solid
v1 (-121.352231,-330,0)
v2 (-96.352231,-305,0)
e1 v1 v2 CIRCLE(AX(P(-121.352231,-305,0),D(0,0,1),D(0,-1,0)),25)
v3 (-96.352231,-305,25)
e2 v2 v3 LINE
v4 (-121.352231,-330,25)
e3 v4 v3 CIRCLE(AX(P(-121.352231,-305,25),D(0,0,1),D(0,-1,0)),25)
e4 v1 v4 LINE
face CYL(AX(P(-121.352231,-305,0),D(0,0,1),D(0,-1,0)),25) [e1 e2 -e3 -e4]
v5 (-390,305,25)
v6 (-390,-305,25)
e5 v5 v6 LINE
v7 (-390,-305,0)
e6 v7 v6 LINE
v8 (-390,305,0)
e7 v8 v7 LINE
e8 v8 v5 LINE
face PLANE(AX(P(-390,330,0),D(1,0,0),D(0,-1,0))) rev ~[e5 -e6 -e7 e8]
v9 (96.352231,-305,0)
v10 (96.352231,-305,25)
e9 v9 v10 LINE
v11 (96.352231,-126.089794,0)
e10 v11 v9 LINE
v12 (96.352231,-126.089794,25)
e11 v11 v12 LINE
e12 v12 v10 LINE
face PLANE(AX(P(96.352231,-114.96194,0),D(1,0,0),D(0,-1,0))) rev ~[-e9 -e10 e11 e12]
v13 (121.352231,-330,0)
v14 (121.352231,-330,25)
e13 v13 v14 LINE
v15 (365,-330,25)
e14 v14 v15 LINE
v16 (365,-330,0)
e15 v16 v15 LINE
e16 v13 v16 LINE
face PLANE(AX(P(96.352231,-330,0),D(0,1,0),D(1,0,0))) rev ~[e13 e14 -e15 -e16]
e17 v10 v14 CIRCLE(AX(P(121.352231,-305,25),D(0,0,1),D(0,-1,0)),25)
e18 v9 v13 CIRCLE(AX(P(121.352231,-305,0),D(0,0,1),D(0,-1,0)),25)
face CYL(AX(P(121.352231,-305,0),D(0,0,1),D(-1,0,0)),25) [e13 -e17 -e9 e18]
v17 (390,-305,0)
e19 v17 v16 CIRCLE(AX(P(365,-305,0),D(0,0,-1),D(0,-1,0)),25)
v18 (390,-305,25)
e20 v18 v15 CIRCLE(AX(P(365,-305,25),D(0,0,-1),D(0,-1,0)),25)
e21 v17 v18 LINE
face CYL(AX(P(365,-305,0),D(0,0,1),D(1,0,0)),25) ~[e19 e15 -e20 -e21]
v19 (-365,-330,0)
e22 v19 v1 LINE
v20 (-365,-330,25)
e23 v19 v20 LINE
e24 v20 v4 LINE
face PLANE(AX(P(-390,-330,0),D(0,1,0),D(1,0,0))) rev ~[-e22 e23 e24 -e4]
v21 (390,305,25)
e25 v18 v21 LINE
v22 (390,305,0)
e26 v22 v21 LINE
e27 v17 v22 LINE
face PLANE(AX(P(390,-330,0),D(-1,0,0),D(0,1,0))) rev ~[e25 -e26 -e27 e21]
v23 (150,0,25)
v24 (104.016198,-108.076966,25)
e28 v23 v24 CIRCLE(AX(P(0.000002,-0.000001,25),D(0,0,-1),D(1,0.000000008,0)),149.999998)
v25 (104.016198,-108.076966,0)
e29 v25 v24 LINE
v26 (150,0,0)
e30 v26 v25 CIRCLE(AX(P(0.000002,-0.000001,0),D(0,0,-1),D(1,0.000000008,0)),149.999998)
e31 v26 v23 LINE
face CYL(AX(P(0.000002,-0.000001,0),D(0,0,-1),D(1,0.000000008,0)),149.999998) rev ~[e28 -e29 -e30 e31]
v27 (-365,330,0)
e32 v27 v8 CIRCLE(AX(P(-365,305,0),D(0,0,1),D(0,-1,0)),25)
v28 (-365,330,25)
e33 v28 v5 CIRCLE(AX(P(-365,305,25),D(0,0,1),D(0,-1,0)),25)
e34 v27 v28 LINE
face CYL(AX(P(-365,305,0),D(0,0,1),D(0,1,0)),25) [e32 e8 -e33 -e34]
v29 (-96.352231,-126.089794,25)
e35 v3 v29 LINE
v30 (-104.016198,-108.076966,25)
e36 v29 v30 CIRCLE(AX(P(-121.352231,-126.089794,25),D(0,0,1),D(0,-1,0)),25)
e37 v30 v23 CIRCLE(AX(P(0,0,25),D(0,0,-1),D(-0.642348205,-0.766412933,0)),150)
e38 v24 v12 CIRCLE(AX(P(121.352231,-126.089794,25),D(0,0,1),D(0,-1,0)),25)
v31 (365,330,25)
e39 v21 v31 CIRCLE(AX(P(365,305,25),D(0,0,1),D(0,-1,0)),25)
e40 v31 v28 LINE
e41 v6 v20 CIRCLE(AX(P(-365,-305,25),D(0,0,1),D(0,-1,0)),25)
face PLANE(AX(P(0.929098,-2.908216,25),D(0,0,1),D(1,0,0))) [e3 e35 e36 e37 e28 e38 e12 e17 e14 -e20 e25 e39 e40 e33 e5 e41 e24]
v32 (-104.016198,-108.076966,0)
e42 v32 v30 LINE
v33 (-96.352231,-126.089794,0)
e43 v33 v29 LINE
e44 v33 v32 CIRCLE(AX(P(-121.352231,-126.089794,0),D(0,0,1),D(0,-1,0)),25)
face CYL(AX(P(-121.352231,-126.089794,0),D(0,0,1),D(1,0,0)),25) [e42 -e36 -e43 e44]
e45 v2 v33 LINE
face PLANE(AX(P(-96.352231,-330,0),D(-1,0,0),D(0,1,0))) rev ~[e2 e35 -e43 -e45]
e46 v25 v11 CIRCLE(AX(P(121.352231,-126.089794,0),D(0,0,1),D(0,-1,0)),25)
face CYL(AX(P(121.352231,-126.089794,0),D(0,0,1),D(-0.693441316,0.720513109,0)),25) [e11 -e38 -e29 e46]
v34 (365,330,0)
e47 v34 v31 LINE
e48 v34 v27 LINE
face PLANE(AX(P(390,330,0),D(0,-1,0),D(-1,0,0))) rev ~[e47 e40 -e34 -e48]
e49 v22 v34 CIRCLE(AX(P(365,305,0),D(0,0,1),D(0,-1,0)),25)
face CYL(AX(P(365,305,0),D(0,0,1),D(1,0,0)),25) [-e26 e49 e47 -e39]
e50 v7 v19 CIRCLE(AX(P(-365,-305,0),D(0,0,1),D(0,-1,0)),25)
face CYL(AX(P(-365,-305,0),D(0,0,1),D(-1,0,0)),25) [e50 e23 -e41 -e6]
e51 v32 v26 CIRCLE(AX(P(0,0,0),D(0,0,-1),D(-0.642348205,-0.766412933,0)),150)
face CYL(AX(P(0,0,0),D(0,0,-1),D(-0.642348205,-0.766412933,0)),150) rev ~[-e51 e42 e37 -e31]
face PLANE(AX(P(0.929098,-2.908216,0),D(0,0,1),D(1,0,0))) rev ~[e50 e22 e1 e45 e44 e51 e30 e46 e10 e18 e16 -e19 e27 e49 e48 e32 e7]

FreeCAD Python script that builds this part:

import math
import FreeCAD as App
import Part
import Sketcher
from FreeCAD import Vector


def edges_at(feature, points):
    """Names of the edges that pass closest to the given points."""
    edges = feature.Shape.Edges
    near = lambda p: min(range(len(edges)), key=lambda i: edges[i].distToShape(Part.Vertex(*p))[0])
    return sorted({f"Edge{near(p) + 1}" for p in points})

doc = App.newDocument("Part")
body = doc.addObject("PartDesign::Body", "Body")

# Sketch on XY plane
sketch1 = body.newObject("Sketcher::SketchObject", "Sketch")
sketch1.AttachmentSupport = (doc.getObject("XY_Plane"), [""])
sketch1.MapMode = "FlatFace"
sketch1.addGeometry([
    Part.LineSegment(Vector(390, -330, 0), Vector(390, 330, 0)),  # 0
    Part.LineSegment(Vector(390, 330, 0), Vector(-390, 330, 0)),  # 1
    Part.LineSegment(Vector(-390, 330, 0), Vector(-390, -330, 0)),  # 2
    Part.LineSegment(Vector(-390, -330, 0), Vector(-96, -330, 0)),  # 3
    Part.LineSegment(Vector(-96, -330, 0), Vector(-96, -115, 0)),  # 4
    Part.ArcOfCircle(Part.Circle(Vector(0, 0, 0), Vector(0, 0, 1), 150), math.radians(0), math.radians(230)),  # 5
    Part.ArcOfCircle(Part.Circle(Vector(0, 0, 0), Vector(0, 0, 1), 150), math.radians(-50), math.radians(0)),  # 6
    Part.LineSegment(Vector(96, -115, 0), Vector(96, -330, 0)),  # 7
    Part.LineSegment(Vector(96, -330, 0), Vector(390, -330, 0)),  # 8
], False)
sketch1.addConstraint([
    Sketcher.Constraint("Coincident", 0, 2, 1, 1),
    Sketcher.Constraint("Coincident", 1, 2, 2, 1),
    Sketcher.Constraint("Coincident", 2, 2, 3, 1),
    Sketcher.Constraint("Coincident", 3, 2, 4, 1),
    Sketcher.Constraint("Coincident", 4, 2, 5, 2),
    Sketcher.Constraint("Tangent", 5, 1, 6, 2),
    Sketcher.Constraint("Coincident", 6, 1, 7, 1),
    Sketcher.Constraint("Coincident", 7, 2, 8, 1),
    Sketcher.Constraint("Coincident", 8, 2, 0, 1),
    Sketcher.Constraint("Vertical", 0),
    Sketcher.Constraint("Horizontal", 1),
    Sketcher.Constraint("Vertical", 2),
    Sketcher.Constraint("Horizontal", 3),
    Sketcher.Constraint("Vertical", 4),
    Sketcher.Constraint("Vertical", 7),
    Sketcher.Constraint("Horizontal", 8),
    Sketcher.Constraint("Coincident", 5, 3, -1, 1),
    Sketcher.Constraint("Symmetric", 0, 2, 2, 2, -1, 1),
    Sketcher.Constraint("Symmetric", 4, 2, 6, 1, -2),
    Sketcher.Constraint("PointOnObject", 5, 1, -1),
    Sketcher.Constraint("Horizontal", 3, 2, 7, 2),
    Sketcher.Constraint("Radius", 5, 150.0),
    Sketcher.Constraint("DistanceX", 1, 2, 1, 1, 780.0),
    Sketcher.Constraint("DistanceY", 0, 1, 0, 2, 660.0),
    Sketcher.Constraint("DistanceX", 3, 1, 3, 2, 293.647769),
])
pad1 = body.newObject("PartDesign::Pad", "Pad")
pad1.Profile = sketch1
pad1.Length = 25
doc.recompute()

fillet = body.newObject("PartDesign::Fillet", "Fillet")
fillet.Base = (pad1, edges_at(pad1, [
    (-96.352, -114.962, 12.5),
    (96.352, -114.962, 12.5),
    (96.352, -330, 12.5),
    (390, -330, 12.5),
    (-96.352, -330, 12.5),
    (-390, -330, 12.5),
    (390, 330, 12.5),
    (-390, 330, 12.5),
]))
fillet.Radius = 25

doc.recompute()
